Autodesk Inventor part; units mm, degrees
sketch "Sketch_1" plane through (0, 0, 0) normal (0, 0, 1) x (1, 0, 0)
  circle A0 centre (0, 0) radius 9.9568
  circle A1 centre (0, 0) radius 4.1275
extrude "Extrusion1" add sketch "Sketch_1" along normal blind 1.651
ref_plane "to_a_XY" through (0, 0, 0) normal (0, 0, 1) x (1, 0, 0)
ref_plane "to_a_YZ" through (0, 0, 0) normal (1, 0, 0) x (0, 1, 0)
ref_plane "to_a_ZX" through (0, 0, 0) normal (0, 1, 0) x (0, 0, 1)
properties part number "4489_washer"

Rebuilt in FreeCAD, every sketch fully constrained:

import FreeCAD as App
import Part
import Sketcher
Q = App.Units.Quantity

doc = App.newDocument("Part")
body = doc.addObject("PartDesign::Body", "Body")

# Sketch on XY plane
sketch1 = body.newObject("Sketcher::SketchObject", "Sketch")
sketch1.AttachmentSupport = (doc.getObject("XY_Plane"), [""])
sketch1.MapMode = "FlatFace"
sketch1.addGeometry(Part.Circle(App.Vector(0, 0, 0), App.Vector(0, 0, 1), 9.9568), False)
sketch1.addGeometry(Part.Circle(App.Vector(0, 0, 0), App.Vector(0, 0, 1), 4.1275), False)
sketch1.addConstraint(Sketcher.Constraint("Coincident", 0, 3, -1, 1))
sketch1.addConstraint(Sketcher.Constraint("Coincident", 1, 3, -1, 1))
sketch1.addConstraint(Sketcher.Constraint("Diameter", 0, Q("0.784 in")))
sketch1.addConstraint(Sketcher.Constraint("Diameter", 1, Q("0.325 in")))
pad1 = body.newObject("PartDesign::Pad", "Pad")
pad1.Profile = sketch1
pad1.Length = Q("0.065 in")

doc.recompute()
